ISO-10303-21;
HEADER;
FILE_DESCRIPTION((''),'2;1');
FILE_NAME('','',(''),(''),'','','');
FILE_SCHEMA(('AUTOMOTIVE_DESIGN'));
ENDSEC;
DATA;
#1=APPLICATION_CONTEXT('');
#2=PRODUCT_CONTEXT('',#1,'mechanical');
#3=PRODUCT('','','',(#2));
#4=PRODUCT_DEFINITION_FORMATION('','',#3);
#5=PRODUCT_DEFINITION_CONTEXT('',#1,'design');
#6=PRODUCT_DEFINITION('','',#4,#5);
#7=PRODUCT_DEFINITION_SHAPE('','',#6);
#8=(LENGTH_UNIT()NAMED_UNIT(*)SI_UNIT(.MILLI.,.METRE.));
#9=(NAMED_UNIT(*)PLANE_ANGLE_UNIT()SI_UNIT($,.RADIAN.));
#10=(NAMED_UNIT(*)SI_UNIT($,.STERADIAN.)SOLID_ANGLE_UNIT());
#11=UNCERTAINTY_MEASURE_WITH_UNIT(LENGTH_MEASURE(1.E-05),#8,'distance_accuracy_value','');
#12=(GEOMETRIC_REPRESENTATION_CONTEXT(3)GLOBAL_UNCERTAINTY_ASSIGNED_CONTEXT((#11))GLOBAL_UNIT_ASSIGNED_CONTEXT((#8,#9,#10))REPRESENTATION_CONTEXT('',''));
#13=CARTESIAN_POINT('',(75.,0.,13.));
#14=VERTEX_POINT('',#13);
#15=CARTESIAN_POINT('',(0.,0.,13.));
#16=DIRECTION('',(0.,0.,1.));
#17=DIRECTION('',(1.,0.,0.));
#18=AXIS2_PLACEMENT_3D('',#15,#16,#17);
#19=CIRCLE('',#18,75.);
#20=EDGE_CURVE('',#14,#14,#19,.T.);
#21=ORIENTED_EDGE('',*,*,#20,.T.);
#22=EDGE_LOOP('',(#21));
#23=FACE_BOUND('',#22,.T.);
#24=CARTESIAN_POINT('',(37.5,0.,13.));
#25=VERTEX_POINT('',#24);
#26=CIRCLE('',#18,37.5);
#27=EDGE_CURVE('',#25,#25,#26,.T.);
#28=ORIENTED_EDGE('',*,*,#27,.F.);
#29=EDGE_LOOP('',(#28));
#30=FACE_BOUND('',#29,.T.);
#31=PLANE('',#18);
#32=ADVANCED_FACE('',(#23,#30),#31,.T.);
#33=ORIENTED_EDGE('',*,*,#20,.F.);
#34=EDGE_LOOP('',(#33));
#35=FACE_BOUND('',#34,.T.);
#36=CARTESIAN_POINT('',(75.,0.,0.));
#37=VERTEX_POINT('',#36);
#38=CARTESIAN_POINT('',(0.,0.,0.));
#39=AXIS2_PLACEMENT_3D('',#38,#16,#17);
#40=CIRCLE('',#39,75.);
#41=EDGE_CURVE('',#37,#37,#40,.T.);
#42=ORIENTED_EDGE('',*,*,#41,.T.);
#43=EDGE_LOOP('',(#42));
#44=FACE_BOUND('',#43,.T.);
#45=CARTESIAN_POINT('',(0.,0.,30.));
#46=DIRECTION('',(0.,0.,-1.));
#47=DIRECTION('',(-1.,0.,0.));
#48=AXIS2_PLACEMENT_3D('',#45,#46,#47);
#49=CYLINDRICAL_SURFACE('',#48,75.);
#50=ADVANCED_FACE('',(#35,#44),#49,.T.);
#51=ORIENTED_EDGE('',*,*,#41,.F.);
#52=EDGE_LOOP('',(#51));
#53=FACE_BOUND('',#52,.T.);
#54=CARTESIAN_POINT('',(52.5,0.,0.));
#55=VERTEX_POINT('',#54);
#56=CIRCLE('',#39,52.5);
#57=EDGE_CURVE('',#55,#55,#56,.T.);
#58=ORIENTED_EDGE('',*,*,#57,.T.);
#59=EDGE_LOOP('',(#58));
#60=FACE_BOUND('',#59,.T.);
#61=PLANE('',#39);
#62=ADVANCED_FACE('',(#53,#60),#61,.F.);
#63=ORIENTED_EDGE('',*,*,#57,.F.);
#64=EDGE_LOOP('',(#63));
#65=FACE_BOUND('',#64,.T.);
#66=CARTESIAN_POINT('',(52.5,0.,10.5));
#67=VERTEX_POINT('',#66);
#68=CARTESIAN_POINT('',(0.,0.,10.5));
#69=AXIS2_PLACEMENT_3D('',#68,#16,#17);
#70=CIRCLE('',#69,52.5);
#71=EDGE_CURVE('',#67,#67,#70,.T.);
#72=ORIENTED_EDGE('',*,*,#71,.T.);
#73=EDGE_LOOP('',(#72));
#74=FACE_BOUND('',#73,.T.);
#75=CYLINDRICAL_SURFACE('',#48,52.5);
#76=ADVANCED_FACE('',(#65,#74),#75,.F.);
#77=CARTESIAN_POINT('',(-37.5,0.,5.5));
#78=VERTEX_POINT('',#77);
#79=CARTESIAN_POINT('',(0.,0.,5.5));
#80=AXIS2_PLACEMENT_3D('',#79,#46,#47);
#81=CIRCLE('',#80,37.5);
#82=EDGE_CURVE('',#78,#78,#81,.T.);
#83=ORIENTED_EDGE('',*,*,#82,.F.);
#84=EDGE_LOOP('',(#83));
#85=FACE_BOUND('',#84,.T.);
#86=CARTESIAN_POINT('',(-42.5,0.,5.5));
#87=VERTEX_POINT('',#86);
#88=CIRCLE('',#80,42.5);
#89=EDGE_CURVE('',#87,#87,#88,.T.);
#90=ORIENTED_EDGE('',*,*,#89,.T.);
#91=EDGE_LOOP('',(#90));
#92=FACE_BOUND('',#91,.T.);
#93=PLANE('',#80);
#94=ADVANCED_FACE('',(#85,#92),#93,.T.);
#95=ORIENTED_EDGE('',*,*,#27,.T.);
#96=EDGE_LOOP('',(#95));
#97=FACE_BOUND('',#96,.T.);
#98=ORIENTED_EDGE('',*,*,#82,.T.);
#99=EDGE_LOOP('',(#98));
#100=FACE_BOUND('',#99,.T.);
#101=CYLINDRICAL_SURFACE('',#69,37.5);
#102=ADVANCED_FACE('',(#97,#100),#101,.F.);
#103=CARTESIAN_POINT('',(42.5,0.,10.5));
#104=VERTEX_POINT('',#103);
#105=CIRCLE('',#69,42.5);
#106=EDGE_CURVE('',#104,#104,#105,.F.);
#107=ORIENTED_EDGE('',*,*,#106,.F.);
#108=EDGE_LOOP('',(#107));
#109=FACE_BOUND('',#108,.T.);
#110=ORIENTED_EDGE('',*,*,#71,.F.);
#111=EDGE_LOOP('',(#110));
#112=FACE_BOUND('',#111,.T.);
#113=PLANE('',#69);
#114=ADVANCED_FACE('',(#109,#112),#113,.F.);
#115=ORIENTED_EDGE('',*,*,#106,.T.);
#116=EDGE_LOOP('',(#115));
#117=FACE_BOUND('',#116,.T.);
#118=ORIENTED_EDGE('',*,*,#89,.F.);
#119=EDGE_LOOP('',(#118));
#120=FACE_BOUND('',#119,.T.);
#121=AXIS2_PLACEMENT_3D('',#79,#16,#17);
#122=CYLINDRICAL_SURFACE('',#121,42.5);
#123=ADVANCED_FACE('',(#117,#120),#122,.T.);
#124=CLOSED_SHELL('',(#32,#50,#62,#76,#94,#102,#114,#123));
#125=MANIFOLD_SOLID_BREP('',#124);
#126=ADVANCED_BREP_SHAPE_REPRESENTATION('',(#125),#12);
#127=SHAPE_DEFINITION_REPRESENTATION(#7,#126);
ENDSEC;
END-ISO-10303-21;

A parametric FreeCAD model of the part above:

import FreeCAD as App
import Part
import Sketcher

V = App.Vector
Q = App.Units.Quantity

doc = App.newDocument("Part")
params = doc.addObject("Spreadsheet::Sheet", "Params")
for row, (alias, value) in enumerate([
    ("sketch1_diameter", "150 mm"),
    ("sketch1_diameter2", "105 mm"),
    ("pad1_length", "30 mm"),
    ("sketch2_diameter", "105 mm"),
    ("sketch2_diameter2", "75 mm"),
    ("pad2_length", "19.5 mm"),
    ("sketch3_diameter", "85 mm"),
    ("sketch3_diameter2", "75 mm"),
    ("pad3_length", "5 mm"),
    ("sketch4_diameter", "150 mm"),
    ("sketch4_diameter2", "75 mm"),
    ("pocket1_length", "17 mm"),
], start=1):
    params.set(f"A{row}", alias)
    params.set(f"B{row}", "=" + value)
    params.setAlias(f"B{row}", alias)

body = doc.addObject("PartDesign::Body", "Body")

sketch1 = body.newObject("Sketcher::SketchObject", "Sketch")
sketch1.AttachmentSupport = (doc.getObject("XY_Plane"), [""])
sketch1.MapMode = "FlatFace"
sketch1.addGeometry([
    Part.Circle(V(0, 0, 0), V(0, 0, 1), 75),
    Part.Circle(V(0, 0, 0), V(0, 0, 1), 52),
], False)
sketch1.addConstraint([
    Sketcher.Constraint("Coincident", 0, 3, -1, 1),
    Sketcher.Constraint("Coincident", 1, 3, -1, 1),
    Sketcher.Constraint("Diameter", 0, Q("150 mm")),
    Sketcher.Constraint("Diameter", 1, Q("105 mm")),
])
sketch1.setExpression("Constraints[2]", "Params.sketch1_diameter")
sketch1.setExpression("Constraints[3]", "Params.sketch1_diameter2")
pad1 = body.newObject("PartDesign::Pad", "Pad")
pad1.Profile = sketch1
pad1.setExpression("Length", "Params.pad1_length")

sketch2 = body.newObject("Sketcher::SketchObject", "Sketch001")
sketch2.AttachmentSupport = (doc.getObject("XY_Plane"), [""])
sketch2.MapMode = "FlatFace"
sketch2.AttachmentOffset = App.Placement(V(0, 0, 30), App.Rotation())
sketch2.addGeometry([
    Part.Circle(V(0, 0, 0), V(0, 0, 1), 52),
    Part.Circle(V(0, 0, 0), V(0, 0, 1), 38),
], False)
sketch2.addConstraint([
    Sketcher.Constraint("Coincident", 0, 3, -1, 1),
    Sketcher.Constraint("Coincident", 1, 3, -1, 1),
    Sketcher.Constraint("Diameter", 0, Q("105 mm")),
    Sketcher.Constraint("Diameter", 1, Q("75 mm")),
])
sketch2.setExpression("Constraints[2]", "Params.sketch2_diameter")
sketch2.setExpression("Constraints[3]", "Params.sketch2_diameter2")
pad2 = body.newObject("PartDesign::Pad", "Pad001")
pad2.Profile = sketch2
pad2.setExpression("Length", "Params.pad2_length")
pad2.Reversed = True

sketch3 = body.newObject("Sketcher::SketchObject", "Sketch002")
sketch3.AttachmentSupport = (doc.getObject("XY_Plane"), [""])
sketch3.MapMode = "FlatFace"
sketch3.AttachmentOffset = App.Placement(V(0, 0, 10.5), App.Rotation())
sketch3.addGeometry([
    Part.Circle(V(0, 0, 0), V(0, 0, 1), 42),
    Part.Circle(V(0, 0, 0), V(0, 0, 1), 38),
], False)
sketch3.addConstraint([
    Sketcher.Constraint("Coincident", 0, 3, -1, 1),
    Sketcher.Constraint("Coincident", 1, 3, -1, 1),
    Sketcher.Constraint("Diameter", 0, Q("85 mm")),
    Sketcher.Constraint("Diameter", 1, Q("75 mm")),
])
sketch3.setExpression("Constraints[2]", "Params.sketch3_diameter")
sketch3.setExpression("Constraints[3]", "Params.sketch3_diameter2")
pad3 = body.newObject("PartDesign::Pad", "Pad002")
pad3.Profile = sketch3
pad3.setExpression("Length", "Params.pad3_length")
pad3.Reversed = True

sketch4 = body.newObject("Sketcher::SketchObject", "Sketch003")
sketch4.AttachmentSupport = (doc.getObject("XY_Plane"), [""])
sketch4.MapMode = "FlatFace"
sketch4.AttachmentOffset = App.Placement(V(0, 0, 30), App.Rotation())
sketch4.addGeometry([
    Part.Circle(V(0, 0, 0), V(0, 0, 1), 75),
    Part.Circle(V(0, 0, 0), V(0, 0, 1), 38),
], False)
sketch4.addConstraint([
    Sketcher.Constraint("Coincident", 0, 3, -1, 1),
    Sketcher.Constraint("Coincident", 1, 3, -1, 1),
    Sketcher.Constraint("Diameter", 0, Q("150 mm")),
    Sketcher.Constraint("Diameter", 1, Q("75 mm")),
])
sketch4.setExpression("Constraints[2]", "Params.sketch4_diameter")
sketch4.setExpression("Constraints[3]", "Params.sketch4_diameter2")
pocket1 = body.newObject("PartDesign::Pocket", "Pocket")
pocket1.Profile = sketch4
pocket1.setExpression("Length", "Params.pocket1_length")

doc.recompute()
